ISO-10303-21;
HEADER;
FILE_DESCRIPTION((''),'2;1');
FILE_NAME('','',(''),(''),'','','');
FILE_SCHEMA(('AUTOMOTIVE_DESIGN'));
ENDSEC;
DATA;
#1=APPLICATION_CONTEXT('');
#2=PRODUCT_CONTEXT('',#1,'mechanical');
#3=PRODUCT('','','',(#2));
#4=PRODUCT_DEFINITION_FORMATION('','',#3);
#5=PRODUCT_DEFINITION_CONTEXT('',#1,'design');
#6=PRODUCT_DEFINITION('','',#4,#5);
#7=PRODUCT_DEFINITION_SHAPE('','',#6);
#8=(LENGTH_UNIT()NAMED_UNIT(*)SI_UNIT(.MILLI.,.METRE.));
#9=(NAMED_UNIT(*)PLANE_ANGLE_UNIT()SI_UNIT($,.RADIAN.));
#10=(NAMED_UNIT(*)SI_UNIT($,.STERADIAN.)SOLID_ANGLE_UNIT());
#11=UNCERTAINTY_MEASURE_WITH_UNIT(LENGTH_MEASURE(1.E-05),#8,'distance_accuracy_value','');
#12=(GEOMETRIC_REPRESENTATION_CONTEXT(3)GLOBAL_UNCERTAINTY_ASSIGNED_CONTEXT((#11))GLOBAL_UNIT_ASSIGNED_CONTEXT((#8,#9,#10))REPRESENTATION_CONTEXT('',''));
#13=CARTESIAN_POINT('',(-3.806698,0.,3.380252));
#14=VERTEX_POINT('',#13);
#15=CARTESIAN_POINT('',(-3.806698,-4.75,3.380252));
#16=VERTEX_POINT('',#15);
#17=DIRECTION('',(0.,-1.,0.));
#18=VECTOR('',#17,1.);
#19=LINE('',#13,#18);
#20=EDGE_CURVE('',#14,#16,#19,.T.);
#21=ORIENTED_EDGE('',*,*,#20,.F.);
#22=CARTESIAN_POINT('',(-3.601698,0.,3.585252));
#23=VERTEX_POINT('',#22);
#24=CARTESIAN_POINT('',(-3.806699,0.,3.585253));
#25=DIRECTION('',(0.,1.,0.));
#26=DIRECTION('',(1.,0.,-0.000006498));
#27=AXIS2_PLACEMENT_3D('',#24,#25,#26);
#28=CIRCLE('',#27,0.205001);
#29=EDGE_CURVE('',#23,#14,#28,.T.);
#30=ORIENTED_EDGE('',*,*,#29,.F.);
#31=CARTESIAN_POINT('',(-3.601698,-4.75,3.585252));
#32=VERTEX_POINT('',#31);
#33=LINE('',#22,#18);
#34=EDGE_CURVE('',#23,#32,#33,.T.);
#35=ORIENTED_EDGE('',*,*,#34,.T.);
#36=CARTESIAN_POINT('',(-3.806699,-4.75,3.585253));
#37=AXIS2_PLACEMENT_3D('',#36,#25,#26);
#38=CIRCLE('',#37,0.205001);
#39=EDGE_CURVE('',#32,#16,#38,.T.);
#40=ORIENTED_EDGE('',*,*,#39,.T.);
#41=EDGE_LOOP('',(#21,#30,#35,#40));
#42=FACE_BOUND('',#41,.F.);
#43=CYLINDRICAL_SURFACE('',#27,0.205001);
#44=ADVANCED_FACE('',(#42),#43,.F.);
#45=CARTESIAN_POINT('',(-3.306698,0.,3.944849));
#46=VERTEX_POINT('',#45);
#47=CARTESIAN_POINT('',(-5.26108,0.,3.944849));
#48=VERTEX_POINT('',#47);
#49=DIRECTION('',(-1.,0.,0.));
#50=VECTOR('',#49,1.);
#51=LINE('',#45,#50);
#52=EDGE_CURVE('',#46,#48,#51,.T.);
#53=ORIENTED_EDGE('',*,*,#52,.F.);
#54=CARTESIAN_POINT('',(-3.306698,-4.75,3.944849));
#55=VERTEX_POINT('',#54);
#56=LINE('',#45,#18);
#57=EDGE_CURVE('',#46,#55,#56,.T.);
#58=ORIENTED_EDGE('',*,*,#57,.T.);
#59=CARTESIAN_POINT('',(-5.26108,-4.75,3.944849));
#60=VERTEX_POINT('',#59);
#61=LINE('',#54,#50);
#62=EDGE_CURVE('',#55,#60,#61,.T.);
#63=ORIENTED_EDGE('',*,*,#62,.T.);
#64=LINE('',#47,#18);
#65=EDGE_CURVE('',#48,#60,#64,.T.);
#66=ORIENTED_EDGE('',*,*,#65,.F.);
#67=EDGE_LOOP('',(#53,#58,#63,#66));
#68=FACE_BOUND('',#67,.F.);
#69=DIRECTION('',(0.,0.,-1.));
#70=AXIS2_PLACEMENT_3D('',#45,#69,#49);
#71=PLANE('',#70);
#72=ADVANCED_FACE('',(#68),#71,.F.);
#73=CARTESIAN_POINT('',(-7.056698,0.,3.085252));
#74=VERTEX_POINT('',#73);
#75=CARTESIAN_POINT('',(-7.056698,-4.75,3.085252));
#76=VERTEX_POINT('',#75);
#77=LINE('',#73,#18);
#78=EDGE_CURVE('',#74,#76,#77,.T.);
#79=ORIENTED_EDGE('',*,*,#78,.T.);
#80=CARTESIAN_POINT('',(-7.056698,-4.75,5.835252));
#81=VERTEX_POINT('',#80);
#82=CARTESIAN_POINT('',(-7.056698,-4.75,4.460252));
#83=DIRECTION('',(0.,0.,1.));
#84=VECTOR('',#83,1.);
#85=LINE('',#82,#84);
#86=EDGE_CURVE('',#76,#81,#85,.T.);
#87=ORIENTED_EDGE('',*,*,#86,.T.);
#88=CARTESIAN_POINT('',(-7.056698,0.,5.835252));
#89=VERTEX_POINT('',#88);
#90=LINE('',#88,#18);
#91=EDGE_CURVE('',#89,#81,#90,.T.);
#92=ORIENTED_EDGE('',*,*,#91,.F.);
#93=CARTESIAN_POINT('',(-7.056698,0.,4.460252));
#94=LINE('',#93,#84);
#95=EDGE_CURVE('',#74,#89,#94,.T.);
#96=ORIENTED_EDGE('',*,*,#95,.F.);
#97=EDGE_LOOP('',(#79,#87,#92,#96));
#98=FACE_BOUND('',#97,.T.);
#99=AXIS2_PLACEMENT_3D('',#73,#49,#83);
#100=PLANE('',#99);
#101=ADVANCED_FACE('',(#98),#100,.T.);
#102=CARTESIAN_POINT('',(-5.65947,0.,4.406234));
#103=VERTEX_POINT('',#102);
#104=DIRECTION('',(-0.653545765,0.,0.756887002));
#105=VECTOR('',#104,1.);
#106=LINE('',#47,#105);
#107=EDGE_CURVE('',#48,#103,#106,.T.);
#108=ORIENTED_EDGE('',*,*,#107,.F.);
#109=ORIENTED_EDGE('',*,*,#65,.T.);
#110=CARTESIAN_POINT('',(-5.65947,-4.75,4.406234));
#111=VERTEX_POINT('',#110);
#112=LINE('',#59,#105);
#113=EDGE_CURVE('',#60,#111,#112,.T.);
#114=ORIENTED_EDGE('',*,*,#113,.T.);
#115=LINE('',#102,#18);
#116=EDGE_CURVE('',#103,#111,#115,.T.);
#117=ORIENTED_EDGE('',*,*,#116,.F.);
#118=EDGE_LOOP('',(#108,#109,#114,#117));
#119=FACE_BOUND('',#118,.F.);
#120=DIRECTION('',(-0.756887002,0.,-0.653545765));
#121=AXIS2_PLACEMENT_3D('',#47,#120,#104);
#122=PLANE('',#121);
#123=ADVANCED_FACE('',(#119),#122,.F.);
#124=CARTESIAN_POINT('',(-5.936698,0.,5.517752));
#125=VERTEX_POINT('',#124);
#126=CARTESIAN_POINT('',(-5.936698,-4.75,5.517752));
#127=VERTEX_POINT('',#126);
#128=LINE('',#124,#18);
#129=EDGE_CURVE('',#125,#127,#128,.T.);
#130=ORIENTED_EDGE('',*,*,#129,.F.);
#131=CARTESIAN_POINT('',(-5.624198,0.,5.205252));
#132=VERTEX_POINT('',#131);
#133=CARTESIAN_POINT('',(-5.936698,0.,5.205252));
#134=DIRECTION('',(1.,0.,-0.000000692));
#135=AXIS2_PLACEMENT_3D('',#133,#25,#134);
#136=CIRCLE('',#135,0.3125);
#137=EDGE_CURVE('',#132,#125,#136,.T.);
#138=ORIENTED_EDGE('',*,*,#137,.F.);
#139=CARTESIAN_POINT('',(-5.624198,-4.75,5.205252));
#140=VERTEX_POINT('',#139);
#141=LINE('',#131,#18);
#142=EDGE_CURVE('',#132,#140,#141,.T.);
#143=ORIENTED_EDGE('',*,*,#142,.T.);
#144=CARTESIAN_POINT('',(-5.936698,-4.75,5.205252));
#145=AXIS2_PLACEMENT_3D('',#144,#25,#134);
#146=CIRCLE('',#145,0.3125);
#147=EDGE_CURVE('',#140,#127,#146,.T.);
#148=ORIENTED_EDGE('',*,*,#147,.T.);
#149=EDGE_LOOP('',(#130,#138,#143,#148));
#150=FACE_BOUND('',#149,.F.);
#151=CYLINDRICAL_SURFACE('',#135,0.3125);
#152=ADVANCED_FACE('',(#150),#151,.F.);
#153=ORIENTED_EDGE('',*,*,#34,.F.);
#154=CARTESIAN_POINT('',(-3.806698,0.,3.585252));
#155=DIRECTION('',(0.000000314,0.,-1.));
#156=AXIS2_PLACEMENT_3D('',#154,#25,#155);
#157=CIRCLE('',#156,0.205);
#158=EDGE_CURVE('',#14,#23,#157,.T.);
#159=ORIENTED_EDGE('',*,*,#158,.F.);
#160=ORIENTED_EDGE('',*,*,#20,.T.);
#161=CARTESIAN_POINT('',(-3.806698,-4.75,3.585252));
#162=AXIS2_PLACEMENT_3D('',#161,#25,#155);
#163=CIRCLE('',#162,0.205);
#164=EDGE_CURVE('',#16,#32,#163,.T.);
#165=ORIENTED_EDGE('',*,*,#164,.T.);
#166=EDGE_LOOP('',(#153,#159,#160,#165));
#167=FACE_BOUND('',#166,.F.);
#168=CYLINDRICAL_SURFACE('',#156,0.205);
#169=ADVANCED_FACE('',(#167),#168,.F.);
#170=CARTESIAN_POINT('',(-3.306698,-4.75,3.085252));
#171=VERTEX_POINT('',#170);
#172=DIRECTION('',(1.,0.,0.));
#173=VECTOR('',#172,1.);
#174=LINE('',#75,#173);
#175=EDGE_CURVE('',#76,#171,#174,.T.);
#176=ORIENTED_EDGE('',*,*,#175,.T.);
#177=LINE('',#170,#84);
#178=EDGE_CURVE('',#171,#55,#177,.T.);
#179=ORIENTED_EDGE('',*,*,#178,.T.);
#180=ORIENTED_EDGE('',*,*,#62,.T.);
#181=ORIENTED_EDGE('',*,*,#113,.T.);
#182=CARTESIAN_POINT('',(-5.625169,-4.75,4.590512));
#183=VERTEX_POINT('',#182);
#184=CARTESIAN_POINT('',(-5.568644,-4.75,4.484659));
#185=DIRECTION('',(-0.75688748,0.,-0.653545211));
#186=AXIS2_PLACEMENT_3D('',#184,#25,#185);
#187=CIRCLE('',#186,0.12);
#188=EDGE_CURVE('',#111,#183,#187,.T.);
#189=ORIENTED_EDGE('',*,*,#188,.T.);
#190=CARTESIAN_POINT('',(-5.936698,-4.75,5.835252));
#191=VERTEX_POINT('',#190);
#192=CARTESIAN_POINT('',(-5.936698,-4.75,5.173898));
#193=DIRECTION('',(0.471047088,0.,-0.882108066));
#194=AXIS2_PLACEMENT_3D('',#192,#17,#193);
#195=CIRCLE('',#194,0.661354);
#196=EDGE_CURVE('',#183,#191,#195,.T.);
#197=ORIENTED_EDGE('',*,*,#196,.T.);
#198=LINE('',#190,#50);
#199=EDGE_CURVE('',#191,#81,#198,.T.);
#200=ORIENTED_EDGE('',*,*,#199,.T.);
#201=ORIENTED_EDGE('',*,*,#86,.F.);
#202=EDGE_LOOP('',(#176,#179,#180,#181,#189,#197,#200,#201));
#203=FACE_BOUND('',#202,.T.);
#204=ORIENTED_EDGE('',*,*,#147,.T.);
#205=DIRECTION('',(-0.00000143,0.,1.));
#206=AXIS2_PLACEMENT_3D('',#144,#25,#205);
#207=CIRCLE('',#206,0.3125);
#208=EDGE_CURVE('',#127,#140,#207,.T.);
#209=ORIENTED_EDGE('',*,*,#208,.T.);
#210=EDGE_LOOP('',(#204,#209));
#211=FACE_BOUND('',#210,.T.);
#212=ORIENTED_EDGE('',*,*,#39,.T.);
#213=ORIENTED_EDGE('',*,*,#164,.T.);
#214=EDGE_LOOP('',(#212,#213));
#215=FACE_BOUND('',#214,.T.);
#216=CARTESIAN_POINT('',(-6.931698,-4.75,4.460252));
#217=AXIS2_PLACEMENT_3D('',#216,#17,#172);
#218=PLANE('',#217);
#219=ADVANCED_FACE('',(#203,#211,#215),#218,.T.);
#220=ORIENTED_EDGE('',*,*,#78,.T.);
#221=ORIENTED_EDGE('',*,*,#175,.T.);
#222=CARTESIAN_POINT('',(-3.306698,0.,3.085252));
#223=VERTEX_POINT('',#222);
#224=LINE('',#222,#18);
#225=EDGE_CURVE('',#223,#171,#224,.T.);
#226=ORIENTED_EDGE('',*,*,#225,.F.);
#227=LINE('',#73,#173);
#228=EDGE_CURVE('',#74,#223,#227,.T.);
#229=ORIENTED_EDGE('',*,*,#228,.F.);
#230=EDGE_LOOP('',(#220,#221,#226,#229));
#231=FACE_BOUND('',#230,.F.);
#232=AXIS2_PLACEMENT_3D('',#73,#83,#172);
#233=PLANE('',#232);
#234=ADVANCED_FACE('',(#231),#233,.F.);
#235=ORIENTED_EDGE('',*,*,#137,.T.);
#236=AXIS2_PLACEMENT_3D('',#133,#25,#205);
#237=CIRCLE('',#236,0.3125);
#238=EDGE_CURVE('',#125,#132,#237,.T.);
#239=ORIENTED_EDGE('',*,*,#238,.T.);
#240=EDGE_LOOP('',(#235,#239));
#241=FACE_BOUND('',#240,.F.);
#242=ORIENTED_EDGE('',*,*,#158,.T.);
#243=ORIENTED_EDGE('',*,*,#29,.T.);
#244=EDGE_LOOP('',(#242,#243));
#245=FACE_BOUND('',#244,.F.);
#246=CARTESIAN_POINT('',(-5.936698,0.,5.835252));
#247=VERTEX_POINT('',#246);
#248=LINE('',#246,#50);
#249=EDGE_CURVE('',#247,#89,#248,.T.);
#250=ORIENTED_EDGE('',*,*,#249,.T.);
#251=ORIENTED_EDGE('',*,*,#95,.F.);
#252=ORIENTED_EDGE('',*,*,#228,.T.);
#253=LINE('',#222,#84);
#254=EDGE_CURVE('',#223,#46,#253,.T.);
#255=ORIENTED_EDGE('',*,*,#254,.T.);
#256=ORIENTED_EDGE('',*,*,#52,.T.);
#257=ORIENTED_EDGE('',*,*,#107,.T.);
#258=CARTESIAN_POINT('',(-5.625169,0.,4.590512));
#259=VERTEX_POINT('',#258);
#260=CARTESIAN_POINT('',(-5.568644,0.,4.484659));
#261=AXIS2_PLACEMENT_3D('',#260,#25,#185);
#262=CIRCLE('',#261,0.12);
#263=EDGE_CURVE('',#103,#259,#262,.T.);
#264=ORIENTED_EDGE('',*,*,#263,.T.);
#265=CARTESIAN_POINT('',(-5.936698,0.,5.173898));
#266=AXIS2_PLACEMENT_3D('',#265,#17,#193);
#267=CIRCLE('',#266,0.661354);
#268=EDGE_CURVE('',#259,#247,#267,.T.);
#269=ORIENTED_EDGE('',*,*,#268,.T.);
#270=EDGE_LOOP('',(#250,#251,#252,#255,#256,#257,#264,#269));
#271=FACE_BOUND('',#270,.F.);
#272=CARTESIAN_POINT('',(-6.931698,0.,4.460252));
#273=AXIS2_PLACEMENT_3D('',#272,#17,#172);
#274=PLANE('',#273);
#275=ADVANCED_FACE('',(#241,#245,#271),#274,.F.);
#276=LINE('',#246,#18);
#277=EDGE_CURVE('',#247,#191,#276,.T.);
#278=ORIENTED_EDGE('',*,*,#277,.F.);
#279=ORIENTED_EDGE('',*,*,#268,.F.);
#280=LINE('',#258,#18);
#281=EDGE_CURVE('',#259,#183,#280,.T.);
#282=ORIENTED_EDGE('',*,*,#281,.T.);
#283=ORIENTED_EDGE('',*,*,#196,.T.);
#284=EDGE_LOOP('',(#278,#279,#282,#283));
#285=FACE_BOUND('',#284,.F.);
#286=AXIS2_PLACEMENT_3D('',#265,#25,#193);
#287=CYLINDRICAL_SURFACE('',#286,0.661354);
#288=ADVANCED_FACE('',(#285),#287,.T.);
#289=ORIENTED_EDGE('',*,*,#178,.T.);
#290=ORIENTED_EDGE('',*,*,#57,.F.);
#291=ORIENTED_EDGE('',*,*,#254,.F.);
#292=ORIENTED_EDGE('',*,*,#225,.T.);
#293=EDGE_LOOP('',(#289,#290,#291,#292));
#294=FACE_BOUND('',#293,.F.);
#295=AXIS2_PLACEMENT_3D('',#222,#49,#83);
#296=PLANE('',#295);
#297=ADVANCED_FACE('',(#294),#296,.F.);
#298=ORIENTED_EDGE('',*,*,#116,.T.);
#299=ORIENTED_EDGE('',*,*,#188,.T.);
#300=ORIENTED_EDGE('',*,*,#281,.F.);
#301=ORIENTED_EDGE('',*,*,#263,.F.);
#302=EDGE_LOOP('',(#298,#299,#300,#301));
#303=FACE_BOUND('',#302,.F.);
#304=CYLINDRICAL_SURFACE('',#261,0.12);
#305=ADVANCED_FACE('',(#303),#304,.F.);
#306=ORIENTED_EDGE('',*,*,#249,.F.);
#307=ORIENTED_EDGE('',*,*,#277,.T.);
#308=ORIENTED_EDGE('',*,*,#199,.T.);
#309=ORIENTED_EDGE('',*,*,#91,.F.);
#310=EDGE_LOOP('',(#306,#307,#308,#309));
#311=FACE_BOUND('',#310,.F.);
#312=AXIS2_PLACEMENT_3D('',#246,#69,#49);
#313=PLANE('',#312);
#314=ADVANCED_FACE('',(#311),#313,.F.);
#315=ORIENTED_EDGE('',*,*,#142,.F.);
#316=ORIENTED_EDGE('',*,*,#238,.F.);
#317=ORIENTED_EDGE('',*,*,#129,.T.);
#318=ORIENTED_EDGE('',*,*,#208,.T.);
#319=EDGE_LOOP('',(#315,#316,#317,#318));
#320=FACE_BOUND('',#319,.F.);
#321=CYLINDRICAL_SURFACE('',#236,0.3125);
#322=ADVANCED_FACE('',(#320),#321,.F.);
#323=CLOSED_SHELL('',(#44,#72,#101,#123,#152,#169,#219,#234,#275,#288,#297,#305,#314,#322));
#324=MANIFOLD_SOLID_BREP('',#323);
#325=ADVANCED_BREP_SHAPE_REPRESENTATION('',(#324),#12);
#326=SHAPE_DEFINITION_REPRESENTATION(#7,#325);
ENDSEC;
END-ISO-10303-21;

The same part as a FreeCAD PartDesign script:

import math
import FreeCAD as App
import Part
import Sketcher

V = App.Vector
Q = App.Units.Quantity

doc = App.newDocument("Part")
body = doc.addObject("PartDesign::Body", "Body")

# Sketch on XZ plane
sketch1 = body.newObject("Sketcher::SketchObject", "Sketch")
sketch1.AttachmentSupport = (doc.getObject("XZ_Plane"), [""])
sketch1.MapMode = "FlatFace"
sketch1.addGeometry([
    Part.LineSegment(V(-7.06, 5.84, 0), V(-7.06, 3.09, 0)),  # 0
    Part.LineSegment(V(-7.06, 3.09, 0), V(-3.31, 3.09, 0)),  # 1
    Part.LineSegment(V(-3.31, 3.09, 0), V(-3.31, 3.94, 0)),  # 2
    Part.LineSegment(V(-3.31, 3.94, 0), V(-5.26, 3.94, 0)),  # 3
    Part.LineSegment(V(-5.26, 3.94, 0), V(-5.66, 4.41, 0)),  # 4
    Part.ArcOfCircle(Part.Circle(V(-5.57, 4.48, 0), V(0, 0, 1), 0.12), math.radians(118), math.radians(221)),  # 5
    Part.ArcOfCircle(Part.Circle(V(-5.94, 5.17, 0), V(0, 0, 1), 0.66), math.radians(-62), math.radians(90)),  # 6
    Part.LineSegment(V(-5.94, 5.84, 0), V(-7.06, 5.84, 0)),  # 7
    Part.ArcOfCircle(Part.Circle(V(-3.81, 3.59, 0), V(0, 0, 1), 0.21), math.radians(0), math.radians(270)),  # 8
    Part.ArcOfCircle(Part.Circle(V(-3.81, 3.59, 0), V(0, 0, 1), 0.21), math.radians(-90), math.radians(0)),  # 9
    Part.ArcOfCircle(Part.Circle(V(-5.94, 5.21, 0), V(0, 0, 1), 0.31), math.radians(0), math.radians(90)),  # 10
    Part.ArcOfCircle(Part.Circle(V(-5.94, 5.21, 0), V(0, 0, 1), 0.31), math.radians(90), math.radians(360)),  # 11
], False)
sketch1.addConstraint([
    Sketcher.Constraint("Coincident", 0, 2, 1, 1),
    Sketcher.Constraint("Coincident", 1, 2, 2, 1),
    Sketcher.Constraint("Coincident", 2, 2, 3, 1),
    Sketcher.Constraint("Coincident", 3, 2, 4, 1),
    Sketcher.Constraint("Tangent", 4, 2, 5, 2),
    Sketcher.Constraint("Coincident", 5, 1, 6, 1),
    Sketcher.Constraint("Tangent", 6, 2, 7, 1),
    Sketcher.Constraint("Coincident", 7, 2, 0, 1),
    Sketcher.Constraint("Coincident", 8, 1, 9, 2),
    Sketcher.Constraint("Coincident", 9, 1, 8, 2),
    Sketcher.Constraint("Tangent", 10, 1, 11, 2),
    Sketcher.Constraint("Coincident", 11, 1, 10, 2),
    Sketcher.Constraint("Vertical", 0),
    Sketcher.Constraint("Horizontal", 1),
    Sketcher.Constraint("Vertical", 2),
    Sketcher.Constraint("Horizontal", 3),
    Sketcher.Constraint("Horizontal", 7),
    Sketcher.Constraint("Equal", 8, 9),
    Sketcher.Constraint("Horizontal", 9, 3, 8, 1),
    Sketcher.Constraint("Horizontal", 11, 3, 10, 1),
    Sketcher.Constraint("Vertical", 6, 3, 10, 3),
    Sketcher.Constraint("Vertical", 8, 3, 9, 1),
    Sketcher.Constraint("Vertical", 6, 2, 11, 1),
    Sketcher.Constraint("Radius", 5, Q("0.12 mm")),
    Sketcher.Constraint("Radius", 8, Q("0.205 mm")),
    Sketcher.Constraint("DistanceX", 1, 1, 1, 2, Q("3.75 mm")),
    Sketcher.Constraint("DistanceX", 7, 2, 7, 1, Q("1.12 mm")),
    Sketcher.Constraint("DistanceY", 0, 2, 0, 1, Q("2.75 mm")),
    Sketcher.Constraint("Radius", 10, Q("0.3125 mm")),
    Sketcher.Constraint("DistanceY", 0, 2, 9, 3, Q("0.500001 mm")),
    Sketcher.Constraint("DistanceX", 8, 3, 1, 2, Q("0.5 mm")),
    Sketcher.Constraint("DistanceY", 9, 3, 10, 3, Q("1.619999 mm")),
    Sketcher.Constraint("Radius", 6, Q("0.661354 mm")),
    Sketcher.Constraint("DistanceX", 3, 2, 3, 1, Q("1.954382 mm")),
    Sketcher.Constraint("DistanceX", 8, 3, -1, 1, Q("3.806698 mm")),
    Sketcher.Constraint("DistanceX", 4, 2, 5, 1, Q("0.034301 mm")),
    Sketcher.Constraint("DistanceY", 2, 1, 2, 2, Q("0.859597 mm")),
    Sketcher.Constraint("DistanceY", -1, 1, 5, 3, Q("4.484659 mm")),
    Sketcher.Constraint("DistanceY", -1, 1, 2, 2, Q("3.944849 mm")),
])
pad1 = body.newObject("PartDesign::Pad", "Pad")
pad1.Profile = sketch1
pad1.Length = 4.75

doc.recompute()
